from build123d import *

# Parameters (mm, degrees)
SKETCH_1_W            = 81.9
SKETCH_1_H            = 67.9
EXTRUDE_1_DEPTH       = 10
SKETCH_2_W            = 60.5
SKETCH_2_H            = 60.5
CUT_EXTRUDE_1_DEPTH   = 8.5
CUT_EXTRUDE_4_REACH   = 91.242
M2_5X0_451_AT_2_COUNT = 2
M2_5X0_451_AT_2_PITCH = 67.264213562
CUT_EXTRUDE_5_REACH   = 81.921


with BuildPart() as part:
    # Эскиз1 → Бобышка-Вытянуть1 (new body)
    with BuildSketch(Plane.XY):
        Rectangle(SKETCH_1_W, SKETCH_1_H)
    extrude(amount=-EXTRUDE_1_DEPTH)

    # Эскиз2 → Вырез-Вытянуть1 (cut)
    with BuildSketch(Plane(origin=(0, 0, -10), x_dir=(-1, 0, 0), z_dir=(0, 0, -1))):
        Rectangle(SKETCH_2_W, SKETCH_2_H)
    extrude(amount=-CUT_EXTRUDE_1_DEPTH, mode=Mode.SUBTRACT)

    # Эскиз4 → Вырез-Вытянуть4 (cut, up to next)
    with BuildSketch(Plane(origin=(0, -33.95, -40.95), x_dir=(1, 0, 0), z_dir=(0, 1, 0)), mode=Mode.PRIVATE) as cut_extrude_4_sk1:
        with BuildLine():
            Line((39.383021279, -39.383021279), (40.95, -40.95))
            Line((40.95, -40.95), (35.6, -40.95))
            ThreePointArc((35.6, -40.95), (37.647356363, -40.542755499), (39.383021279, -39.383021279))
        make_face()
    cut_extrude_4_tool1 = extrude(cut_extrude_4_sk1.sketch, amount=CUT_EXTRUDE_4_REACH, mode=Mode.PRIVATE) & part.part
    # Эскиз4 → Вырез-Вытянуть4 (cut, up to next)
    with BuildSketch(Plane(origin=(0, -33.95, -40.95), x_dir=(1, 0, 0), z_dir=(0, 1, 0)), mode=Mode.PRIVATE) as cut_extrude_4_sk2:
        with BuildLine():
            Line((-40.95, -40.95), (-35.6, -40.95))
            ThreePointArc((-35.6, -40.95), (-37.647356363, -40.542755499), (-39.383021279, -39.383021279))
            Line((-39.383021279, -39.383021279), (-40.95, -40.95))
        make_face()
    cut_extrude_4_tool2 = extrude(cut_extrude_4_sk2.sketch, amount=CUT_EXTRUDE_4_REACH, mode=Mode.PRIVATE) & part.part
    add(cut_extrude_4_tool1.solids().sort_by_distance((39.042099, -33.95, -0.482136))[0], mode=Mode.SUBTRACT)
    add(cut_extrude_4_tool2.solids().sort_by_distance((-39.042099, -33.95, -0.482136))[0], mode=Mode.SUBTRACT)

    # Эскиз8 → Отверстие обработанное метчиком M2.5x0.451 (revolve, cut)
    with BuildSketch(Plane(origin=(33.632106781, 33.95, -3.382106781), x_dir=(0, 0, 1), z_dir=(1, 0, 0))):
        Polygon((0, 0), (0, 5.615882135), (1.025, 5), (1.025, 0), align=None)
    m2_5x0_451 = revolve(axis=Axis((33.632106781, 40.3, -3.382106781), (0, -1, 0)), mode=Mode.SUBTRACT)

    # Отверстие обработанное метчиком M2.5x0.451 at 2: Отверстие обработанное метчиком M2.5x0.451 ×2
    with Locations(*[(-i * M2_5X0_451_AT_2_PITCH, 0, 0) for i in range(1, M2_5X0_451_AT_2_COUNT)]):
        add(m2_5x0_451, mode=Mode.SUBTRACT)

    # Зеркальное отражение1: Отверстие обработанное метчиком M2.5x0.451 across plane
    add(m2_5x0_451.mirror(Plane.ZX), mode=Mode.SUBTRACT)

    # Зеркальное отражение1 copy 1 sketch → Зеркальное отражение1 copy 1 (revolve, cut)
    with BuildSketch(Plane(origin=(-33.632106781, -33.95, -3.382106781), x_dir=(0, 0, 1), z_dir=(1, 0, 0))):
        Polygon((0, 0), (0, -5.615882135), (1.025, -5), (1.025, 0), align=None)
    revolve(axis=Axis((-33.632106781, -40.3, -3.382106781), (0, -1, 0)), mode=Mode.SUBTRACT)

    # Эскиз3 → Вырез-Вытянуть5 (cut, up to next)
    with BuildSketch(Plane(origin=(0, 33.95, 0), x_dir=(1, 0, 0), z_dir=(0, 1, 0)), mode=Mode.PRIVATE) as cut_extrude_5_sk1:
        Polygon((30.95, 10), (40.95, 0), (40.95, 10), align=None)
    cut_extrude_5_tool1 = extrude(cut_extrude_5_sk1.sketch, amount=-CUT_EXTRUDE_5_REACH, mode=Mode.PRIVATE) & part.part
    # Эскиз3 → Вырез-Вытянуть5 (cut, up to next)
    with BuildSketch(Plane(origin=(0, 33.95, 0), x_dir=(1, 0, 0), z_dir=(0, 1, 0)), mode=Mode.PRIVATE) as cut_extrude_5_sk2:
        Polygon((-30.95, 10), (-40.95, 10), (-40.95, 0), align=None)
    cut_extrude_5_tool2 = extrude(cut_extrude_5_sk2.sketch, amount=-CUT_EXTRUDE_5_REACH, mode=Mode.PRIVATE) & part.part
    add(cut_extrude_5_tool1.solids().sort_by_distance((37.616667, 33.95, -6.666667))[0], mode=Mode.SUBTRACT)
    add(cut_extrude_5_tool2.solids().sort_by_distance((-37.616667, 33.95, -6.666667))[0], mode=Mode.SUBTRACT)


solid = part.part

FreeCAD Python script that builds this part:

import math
import FreeCAD as App
import Part
import Sketcher
Q = App.Units.Quantity


def add_polygon(sketch, points):
    """Adds a closed chain of lines whose ends are joined by coincident constraints."""
    first, n = sketch.GeometryCount, len(points)
    for a, b in zip(points, points[1:] + points[:1]):
        sketch.addGeometry(Part.LineSegment(App.Vector(*a, 0), App.Vector(*b, 0)), False)
    for i in range(n):
        sketch.addConstraint(Sketcher.Constraint("Coincident", first + i, 2, first + (i + 1) % n, 1))

doc = App.newDocument("Part")
body = doc.addObject("PartDesign::Body", "Body")

sketch1 = body.newObject("Sketcher::SketchObject", "Sketch")
sketch1.AttachmentSupport = (doc.getObject("XY_Plane"), [""])
sketch1.MapMode = "FlatFace"
add_polygon(sketch1, [(-40.95, 33.95), (-40.95, -33.95), (40.95, -33.95), (40.95, 33.95)])
sketch1.addConstraint([
    Sketcher.Constraint("Vertical", 0),
    Sketcher.Constraint("Horizontal", 1),
    Sketcher.Constraint("Vertical", 2),
    Sketcher.Constraint("Horizontal", 3),
    Sketcher.Constraint("Symmetric", 0, 2, 2, 2, -1, 1),
    Sketcher.Constraint("DistanceX", 1, 1, 1, 2, Q("81.9 mm")),
    Sketcher.Constraint("DistanceY", 0, 2, 0, 1, Q("67.9 mm")),
])
pad1 = body.newObject("PartDesign::Pad", "Pad")
pad1.Profile = sketch1
pad1.Length = 10
pad1.Reversed = True

sketch2 = body.newObject("Sketcher::SketchObject", "Sketch001")
sketch2.AttachmentSupport = (doc.getObject("XY_Plane"), [""])
sketch2.MapMode = "FlatFace"
sketch2.AttachmentOffset = App.Placement(App.Vector(0, 0, -10), App.Rotation())
add_polygon(sketch2, [(30.25, 30.25), (30.25, -30.25), (-30.25, -30.25), (-30.25, 30.25)])
sketch2.addConstraint([
    Sketcher.Constraint("Vertical", 0),
    Sketcher.Constraint("Horizontal", 1),
    Sketcher.Constraint("Vertical", 2),
    Sketcher.Constraint("Horizontal", 3),
    Sketcher.Constraint("Symmetric", 0, 2, 2, 2, -1, 1),
    Sketcher.Constraint("Equal", 3, 0),
    Sketcher.Constraint("DistanceX", 1, 2, 1, 1, Q("60.5 mm")),
])
pocket1 = body.newObject("PartDesign::Pocket", "Pocket")
pocket1.Profile = sketch2
pocket1.Length = 8.5
pocket1.Reversed = True

sketch3 = body.newObject("Sketcher::SketchObject", "Sketch002")
sketch3.AttachmentSupport = (doc.getObject("XZ_Plane"), [""])
sketch3.MapMode = "FlatFace"
sketch3.AttachmentOffset = App.Placement(App.Vector(0, 0, 33.95), App.Rotation())
sketch3.addGeometry([
    Part.LineSegment(App.Vector(40.95, 0, 0), App.Vector(39.383021, -1.566979, 0)),
    Part.ArcOfCircle(Part.Circle(App.Vector(35.6, -5.35, 0), App.Vector(0, 0, 1), 5.35), math.radians(45), math.radians(90)),
    Part.LineSegment(App.Vector(35.6, 0, 0), App.Vector(40.95, 0, 0)),
], False)
sketch3.addConstraint([
    Sketcher.Constraint("Coincident", 0, 2, 1, 1),
    Sketcher.Constraint("Tangent", 1, 2, 2, 1),
    Sketcher.Constraint("Coincident", 2, 2, 0, 1),
    Sketcher.Constraint("Horizontal", 2),
    Sketcher.Constraint("PointOnObject", 1, 2, -1),
    Sketcher.Constraint("Angle", 0, Q("-135 deg")),
    Sketcher.Constraint("Radius", 1, Q("5.35 mm")),
    Sketcher.Constraint("DistanceX", 2, 1, 2, 2, Q("5.35 mm")),
    Sketcher.Constraint("DistanceX", -1, 1, 1, 3, Q("35.6 mm")),
])
pocket2 = body.newObject("PartDesign::Pocket", "Pocket001")
pocket2.Profile = sketch3
pocket2.Type = "UpToFirst"

sketch4 = body.newObject("Sketcher::SketchObject", "Sketch003")
sketch4.AttachmentSupport = (doc.getObject("XZ_Plane"), [""])
sketch4.MapMode = "FlatFace"
sketch4.AttachmentOffset = App.Placement(App.Vector(0, 0, 33.95), App.Rotation())
sketch4.addGeometry([
    Part.LineSegment(App.Vector(-40.95, 0, 0), App.Vector(-35.6, 0, 0)),
    Part.ArcOfCircle(Part.Circle(App.Vector(-35.6, -5.35, 0), App.Vector(0, 0, 1), 5.35), math.radians(90), math.radians(135)),
    Part.LineSegment(App.Vector(-39.383021, -1.566979, 0), App.Vector(-40.95, 0, 0)),
], False)
sketch4.addConstraint([
    Sketcher.Constraint("Tangent", 0, 2, 1, 1),
    Sketcher.Constraint("Coincident", 1, 2, 2, 1),
    Sketcher.Constraint("Coincident", 2, 2, 0, 1),
    Sketcher.Constraint("Horizontal", 0),
    Sketcher.Constraint("PointOnObject", 0, 2, -1),
    Sketcher.Constraint("Angle", 2, Q("135 deg")),
    Sketcher.Constraint("Radius", 1, Q("5.35 mm")),
    Sketcher.Constraint("DistanceX", 0, 1, 0, 2, Q("5.35 mm")),
    Sketcher.Constraint("DistanceX", 1, 3, -1, 1, Q("35.6 mm")),
])
pocket3 = body.newObject("PartDesign::Pocket", "Pocket002")
pocket3.Profile = sketch4
pocket3.Type = "UpToFirst"

sketch5 = body.newObject("Sketcher::SketchObject", "Sketch004")
sketch5.AttachmentSupport = (doc.getObject("YZ_Plane"), [""])
sketch5.MapMode = "FlatFace"
sketch5.AttachmentOffset = App.Placement(App.Vector(0, 0, 33.632107), App.Rotation())
add_polygon(sketch5, [(28.334118, -3.382107), (33.95, -3.382107), (33.95, -2.357107), (28.95, -2.357107)])
sketch5.addGeometry(Part.LineSegment(App.Vector(33.95, -3.382107, 0), App.Vector(28.334118, -3.382107, 0)), True)
sketch5.addConstraint([
    Sketcher.Constraint("Horizontal", 0),
    Sketcher.Constraint("Vertical", 1),
    Sketcher.Constraint("Horizontal", 2),
    Sketcher.Constraint("Horizontal", 4),
    Sketcher.Constraint("Coincident", 4, 1, 0, 2),
    Sketcher.Constraint("Equal", 0, 4),
    Sketcher.Constraint("DistanceX", 2, 2, 2, 1, Q("5 mm")),
    Sketcher.Constraint("Angle", 3, Q("-121 deg")),
    Sketcher.Constraint("DistanceY", 1, 1, 1, 2, Q("1.025 mm")),
    Sketcher.Constraint("DistanceX", -1, 1, 0, 2, Q("33.95 mm")),
    Sketcher.Constraint("DistanceY", 0, 2, -1, 1, Q("3.382107 mm")),
])
groove = body.newObject("PartDesign::Groove", "Groove")
groove.Profile = sketch5
groove.ReferenceAxis = (sketch5, ["Axis0"])
groove.Angle = 360
doc.recompute()

linearpattern = body.newObject("PartDesign::LinearPattern", "LinearPattern")
linearpattern.Originals = [groove]
linearpattern.Direction = (doc.getObject("X_Axis"), [""])
linearpattern.Mode = "offset"
linearpattern.Offset = 67.264214
linearpattern.Occurrences = 2
linearpattern.Reversed = True
body.Tip = linearpattern
doc.recompute()

mirrored = body.newObject("PartDesign::Mirrored", "Mirrored")
mirrored.Originals = [groove]
mirrored.MirrorPlane = (doc.getObject("XZ_Plane"), [""])
body.Tip = mirrored

sketch6 = body.newObject("Sketcher::SketchObject", "Sketch005")
sketch6.AttachmentSupport = (doc.getObject("YZ_Plane"), [""])
sketch6.MapMode = "FlatFace"
sketch6.AttachmentOffset = App.Placement(App.Vector(0, 0, -33.632107), App.Rotation())
add_polygon(sketch6, [(-33.95, -3.382107), (-28.334118, -3.382107), (-28.95, -2.357107), (-33.95, -2.357107)])
sketch6.addGeometry(Part.LineSegment(App.Vector(-28.334118, -3.382107, 0), App.Vector(-33.95, -3.382107, 0)), True)
sketch6.addConstraint([
    Sketcher.Constraint("Horizontal", 0),
    Sketcher.Constraint("Horizontal", 2),
    Sketcher.Constraint("Vertical", 3),
    Sketcher.Constraint("Horizontal", 4),
    Sketcher.Constraint("Coincident", 4, 1, 0, 2),
    Sketcher.Constraint("Vertical", 2, 2, 4, 2),
    Sketcher.Constraint("DistanceX", 2, 2, 2, 1, Q("5 mm")),
    Sketcher.Constraint("Angle", 1, Q("121 deg")),
    Sketcher.Constraint("DistanceY", 3, 2, 3, 1, Q("1.025 mm")),
    Sketcher.Constraint("DistanceX", 1, 2, -1, 1, Q("28.95 mm")),
    Sketcher.Constraint("DistanceY", 0, 2, -1, 1, Q("3.382107 mm")),
])
groove2 = body.newObject("PartDesign::Groove", "Groove001")
groove2.Profile = sketch6
groove2.ReferenceAxis = (sketch6, ["Axis0"])
groove2.Angle = 360

sketch7 = body.newObject("Sketcher::SketchObject", "Sketch006")
sketch7.AttachmentSupport = (doc.getObject("XZ_Plane"), [""])
sketch7.MapMode = "FlatFace"
sketch7.AttachmentOffset = App.Placement(App.Vector(0, 0, -33.95), App.Rotation())
add_polygon(sketch7, [(30.95, -10), (40.95, 0), (40.95, -10)])
sketch7.addConstraint([
    Sketcher.Constraint("Vertical", 1),
    Sketcher.Constraint("Horizontal", 2),
    Sketcher.Constraint("PointOnObject", 0, 2, -1),
    Sketcher.Constraint("Equal", 2, 1),
    Sketcher.Constraint("DistanceX", 2, 2, 2, 1, Q("10 mm")),
    Sketcher.Constraint("DistanceX", -1, 1, 0, 2, Q("40.95 mm")),
])
pocket4 = body.newObject("PartDesign::Pocket", "Pocket003")
pocket4.Profile = sketch7
pocket4.Type = "UpToFirst"
pocket4.Reversed = True

sketch8 = body.newObject("Sketcher::SketchObject", "Sketch007")
sketch8.AttachmentSupport = (doc.getObject("XZ_Plane"), [""])
sketch8.MapMode = "FlatFace"
sketch8.AttachmentOffset = App.Placement(App.Vector(0, 0, -33.95), App.Rotation())
add_polygon(sketch8, [(-30.95, -10), (-40.95, -10), (-40.95, 0)])
sketch8.addConstraint([
    Sketcher.Constraint("Horizontal", 0),
    Sketcher.Constraint("Vertical", 1),
    Sketcher.Constraint("PointOnObject", 1, 2, -1),
    Sketcher.Constraint("Equal", 0, 1),
    Sketcher.Constraint("DistanceX", 0, 2, 0, 1, Q("10 mm")),
    Sketcher.Constraint("DistanceX", 0, 2, -1, 1, Q("40.95 mm")),
])
pocket5 = body.newObject("PartDesign::Pocket", "Pocket004")
pocket5.Profile = sketch8
pocket5.Type = "UpToFirst"
pocket5.Reversed = True

doc.recompute()
